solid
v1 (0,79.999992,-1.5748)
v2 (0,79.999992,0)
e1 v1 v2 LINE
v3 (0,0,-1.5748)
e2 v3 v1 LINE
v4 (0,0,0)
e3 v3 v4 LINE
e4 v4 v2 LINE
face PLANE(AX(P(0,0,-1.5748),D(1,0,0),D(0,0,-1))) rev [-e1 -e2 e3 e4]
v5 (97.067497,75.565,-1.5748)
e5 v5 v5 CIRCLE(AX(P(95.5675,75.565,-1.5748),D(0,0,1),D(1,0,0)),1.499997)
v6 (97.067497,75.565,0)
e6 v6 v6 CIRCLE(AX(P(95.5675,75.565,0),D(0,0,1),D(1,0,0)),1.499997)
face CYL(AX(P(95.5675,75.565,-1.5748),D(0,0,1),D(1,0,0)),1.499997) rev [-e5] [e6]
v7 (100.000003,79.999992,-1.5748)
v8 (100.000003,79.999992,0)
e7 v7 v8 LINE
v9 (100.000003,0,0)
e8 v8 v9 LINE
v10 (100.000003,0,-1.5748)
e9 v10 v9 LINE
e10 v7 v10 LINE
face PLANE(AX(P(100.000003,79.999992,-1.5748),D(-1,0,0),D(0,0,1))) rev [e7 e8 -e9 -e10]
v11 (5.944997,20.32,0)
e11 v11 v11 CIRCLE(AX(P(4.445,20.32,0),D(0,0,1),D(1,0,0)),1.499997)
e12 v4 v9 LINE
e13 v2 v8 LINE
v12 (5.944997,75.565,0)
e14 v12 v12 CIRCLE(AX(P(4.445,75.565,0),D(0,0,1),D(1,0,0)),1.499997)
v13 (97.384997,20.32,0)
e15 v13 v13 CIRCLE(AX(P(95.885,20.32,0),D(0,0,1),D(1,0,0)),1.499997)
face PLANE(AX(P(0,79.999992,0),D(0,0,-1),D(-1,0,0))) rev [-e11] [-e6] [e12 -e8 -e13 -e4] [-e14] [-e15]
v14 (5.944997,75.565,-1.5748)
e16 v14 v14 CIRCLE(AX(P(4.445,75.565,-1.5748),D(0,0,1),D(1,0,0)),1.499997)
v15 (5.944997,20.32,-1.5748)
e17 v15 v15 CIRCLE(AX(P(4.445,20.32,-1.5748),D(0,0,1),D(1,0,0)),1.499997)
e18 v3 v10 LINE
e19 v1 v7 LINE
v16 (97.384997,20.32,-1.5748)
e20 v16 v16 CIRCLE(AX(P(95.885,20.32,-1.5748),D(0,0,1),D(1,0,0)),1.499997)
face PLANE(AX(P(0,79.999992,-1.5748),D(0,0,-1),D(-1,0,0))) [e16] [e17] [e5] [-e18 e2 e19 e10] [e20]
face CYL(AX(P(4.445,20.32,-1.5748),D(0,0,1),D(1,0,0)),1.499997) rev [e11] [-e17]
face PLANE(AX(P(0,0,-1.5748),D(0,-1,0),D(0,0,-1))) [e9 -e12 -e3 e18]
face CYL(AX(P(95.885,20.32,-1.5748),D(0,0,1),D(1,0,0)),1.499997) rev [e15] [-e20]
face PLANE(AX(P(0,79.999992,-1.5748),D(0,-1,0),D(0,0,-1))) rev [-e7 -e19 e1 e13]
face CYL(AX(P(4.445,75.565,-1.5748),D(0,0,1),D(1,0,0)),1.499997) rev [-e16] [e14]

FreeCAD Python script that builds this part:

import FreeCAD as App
import Part
import Sketcher
from FreeCAD import Vector
Q = App.Units.Quantity

doc = App.newDocument("Part")
body = doc.addObject("PartDesign::Body", "Body")

# Sketch on XY plane
sketch1 = body.newObject("Sketcher::SketchObject", "Sketch")
sketch1.AttachmentSupport = (doc.getObject("XY_Plane"), [""])
sketch1.MapMode = "FlatFace"
sketch1.addGeometry([
    Part.LineSegment(Vector(0, 80, 0), Vector(0, 0, 0)),
    Part.LineSegment(Vector(0, 0, 0), Vector(100, 0, 0)),
    Part.LineSegment(Vector(100, 0, 0), Vector(100, 80, 0)),
    Part.LineSegment(Vector(100, 80, 0), Vector(0, 80, 0)),
], False)
sketch1.addConstraint([
    Sketcher.Constraint("Coincident", 0, 2, 1, 1),
    Sketcher.Constraint("Coincident", 1, 2, 2, 1),
    Sketcher.Constraint("Coincident", 2, 2, 3, 1),
    Sketcher.Constraint("Coincident", 3, 2, 0, 1),
    Sketcher.Constraint("Vertical", 0),
    Sketcher.Constraint("Horizontal", 1),
    Sketcher.Constraint("Vertical", 2),
    Sketcher.Constraint("Horizontal", 3),
    Sketcher.Constraint("Coincident", 0, 2, -1, 1),
    Sketcher.Constraint("DistanceX", 1, 1, 1, 2, 100.000003),
    Sketcher.Constraint("DistanceY", 0, 2, 0, 1, 79.999992),
])
pad1 = body.newObject("PartDesign::Pad", "Pad")
pad1.Profile = sketch1
pad1.Length = Q("0.062 in")
pad1.Reversed = True

# Sketch on XY plane
sketch2 = body.newObject("Sketcher::SketchObject", "Sketch001")
sketch2.AttachmentSupport = (doc.getObject("XY_Plane"), [""])
sketch2.MapMode = "FlatFace"
sketch2.addGeometry([
    Part.Circle(Vector(95.9, 20.3, 0), Vector(0, 0, 1), 1.5),
    Part.Circle(Vector(95.6, 75.6, 0), Vector(0, 0, 1), 1.5),
    Part.Circle(Vector(4.4, 75.6, 0), Vector(0, 0, 1), 1.5),
    Part.Circle(Vector(4.4, 20.3, 0), Vector(0, 0, 1), 1.5),
], False)
sketch2.addConstraint([
    Sketcher.Constraint("Equal", 0, 1),
    Sketcher.Constraint("Equal", 1, 2),
    Sketcher.Constraint("Equal", 2, 3),
    Sketcher.Constraint("Horizontal", 1, 3, 2, 3),
    Sketcher.Constraint("Horizontal", 0, 3, 3, 3),
    Sketcher.Constraint("Vertical", 2, 3, 3, 3),
    Sketcher.Constraint("DistanceY", -1, 1, 0, 3, Q("0.8 in")),
    Sketcher.Constraint("DistanceX", 2, 3, 0, 3, Q("3.6 in")),
    Sketcher.Constraint("DistanceX", -1, 1, 0, 3, Q("3.775 in")),
    Sketcher.Constraint("DistanceY", -1, 1, 1, 3, Q("2.975 in")),
    Sketcher.Constraint("Diameter", 0, 2.999994),
    Sketcher.Constraint("DistanceX", -1, 1, 1, 3, Q("3.7625 in")),
])
pocket1 = body.newObject("PartDesign::Pocket", "Pocket")
pocket1.Profile = sketch2
pocket1.Type = "ThroughAll"

doc.recompute()
